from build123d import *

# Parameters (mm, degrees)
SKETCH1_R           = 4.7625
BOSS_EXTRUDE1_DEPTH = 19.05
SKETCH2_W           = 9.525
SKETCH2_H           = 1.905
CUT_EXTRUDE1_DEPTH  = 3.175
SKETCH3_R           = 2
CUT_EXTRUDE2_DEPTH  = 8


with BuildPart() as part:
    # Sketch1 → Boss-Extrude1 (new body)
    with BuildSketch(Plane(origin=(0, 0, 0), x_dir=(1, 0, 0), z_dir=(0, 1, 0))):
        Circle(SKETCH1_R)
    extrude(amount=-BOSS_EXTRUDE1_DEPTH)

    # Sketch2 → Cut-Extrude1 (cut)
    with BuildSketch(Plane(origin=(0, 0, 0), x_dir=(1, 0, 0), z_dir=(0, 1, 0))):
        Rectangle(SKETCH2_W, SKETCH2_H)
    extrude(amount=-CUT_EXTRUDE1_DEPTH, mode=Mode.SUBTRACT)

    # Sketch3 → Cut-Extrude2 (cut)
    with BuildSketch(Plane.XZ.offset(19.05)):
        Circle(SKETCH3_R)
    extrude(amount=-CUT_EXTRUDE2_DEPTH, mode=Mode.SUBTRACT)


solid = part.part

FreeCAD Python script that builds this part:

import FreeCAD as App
import Part
import Sketcher
Q = App.Units.Quantity

doc = App.newDocument("Part")
body = doc.addObject("PartDesign::Body", "Body")

# Sketch on XZ plane
sketch1 = body.newObject("Sketcher::SketchObject", "Sketch")
sketch1.AttachmentSupport = (doc.getObject("XZ_Plane"), [""])
sketch1.MapMode = "FlatFace"
sketch1.addGeometry(Part.Circle(App.Vector(0, 0, 0), App.Vector(0, 0, 1), 4.7625), False)
sketch1.addConstraint([
    Sketcher.Constraint("Coincident", 0, 3, -1, 1),
    Sketcher.Constraint("Diameter", 0, Q("0.375 in")),
])
pad1 = body.newObject("PartDesign::Pad", "Pad")
pad1.Profile = sketch1
pad1.Length = Q("0.75 in")

# Sketch on XZ plane
sketch2 = body.newObject("Sketcher::SketchObject", "Sketch001")
sketch2.AttachmentSupport = (doc.getObject("XZ_Plane"), [""])
sketch2.MapMode = "FlatFace"
sketch2.addGeometry([
    Part.LineSegment(App.Vector(-4.7625, -0.9525, 0), App.Vector(-4.7625, 0.9525, 0)),
    Part.LineSegment(App.Vector(-4.7625, 0.9525, 0), App.Vector(4.7625, 0.9525, 0)),
    Part.LineSegment(App.Vector(4.7625, 0.9525, 0), App.Vector(4.7625, -0.9525, 0)),
    Part.LineSegment(App.Vector(4.7625, -0.9525, 0), App.Vector(-4.7625, -0.9525, 0)),
], False)
sketch2.addConstraint([
    Sketcher.Constraint("Coincident", 0, 2, 1, 1),
    Sketcher.Constraint("Coincident", 1, 2, 2, 1),
    Sketcher.Constraint("Coincident", 2, 2, 3, 1),
    Sketcher.Constraint("Coincident", 3, 2, 0, 1),
    Sketcher.Constraint("Vertical", 0),
    Sketcher.Constraint("Horizontal", 1),
    Sketcher.Constraint("Vertical", 2),
    Sketcher.Constraint("Horizontal", 3),
    Sketcher.Constraint("Symmetric", 0, 2, 2, 2, -1, 1),
    Sketcher.Constraint("DistanceX", 1, 1, 1, 2, Q("0.375 in")),
    Sketcher.Constraint("DistanceY", 0, 1, 0, 2, Q("0.075 in")),
])
pocket1 = body.newObject("PartDesign::Pocket", "Pocket")
pocket1.Profile = sketch2
pocket1.Length = Q("0.125 in")
pocket1.Reversed = True

# Sketch on XZ plane
sketch3 = body.newObject("Sketcher::SketchObject", "Sketch002")
sketch3.AttachmentSupport = (doc.getObject("XZ_Plane"), [""])
sketch3.MapMode = "FlatFace"
sketch3.AttachmentOffset = App.Placement(App.Vector(0, 0, 0.75 * 25.4), App.Rotation())
sketch3.addGeometry(Part.Circle(App.Vector(0, 0, 0), App.Vector(0, 0, 1), 2), False)
sketch3.addConstraint([
    Sketcher.Constraint("Coincident", 0, 3, -1, 1),
    Sketcher.Constraint("Diameter", 0, 4.0),
])
pocket2 = body.newObject("PartDesign::Pocket", "Pocket001")
pocket2.Profile = sketch3
pocket2.Length = 8

doc.recompute()
